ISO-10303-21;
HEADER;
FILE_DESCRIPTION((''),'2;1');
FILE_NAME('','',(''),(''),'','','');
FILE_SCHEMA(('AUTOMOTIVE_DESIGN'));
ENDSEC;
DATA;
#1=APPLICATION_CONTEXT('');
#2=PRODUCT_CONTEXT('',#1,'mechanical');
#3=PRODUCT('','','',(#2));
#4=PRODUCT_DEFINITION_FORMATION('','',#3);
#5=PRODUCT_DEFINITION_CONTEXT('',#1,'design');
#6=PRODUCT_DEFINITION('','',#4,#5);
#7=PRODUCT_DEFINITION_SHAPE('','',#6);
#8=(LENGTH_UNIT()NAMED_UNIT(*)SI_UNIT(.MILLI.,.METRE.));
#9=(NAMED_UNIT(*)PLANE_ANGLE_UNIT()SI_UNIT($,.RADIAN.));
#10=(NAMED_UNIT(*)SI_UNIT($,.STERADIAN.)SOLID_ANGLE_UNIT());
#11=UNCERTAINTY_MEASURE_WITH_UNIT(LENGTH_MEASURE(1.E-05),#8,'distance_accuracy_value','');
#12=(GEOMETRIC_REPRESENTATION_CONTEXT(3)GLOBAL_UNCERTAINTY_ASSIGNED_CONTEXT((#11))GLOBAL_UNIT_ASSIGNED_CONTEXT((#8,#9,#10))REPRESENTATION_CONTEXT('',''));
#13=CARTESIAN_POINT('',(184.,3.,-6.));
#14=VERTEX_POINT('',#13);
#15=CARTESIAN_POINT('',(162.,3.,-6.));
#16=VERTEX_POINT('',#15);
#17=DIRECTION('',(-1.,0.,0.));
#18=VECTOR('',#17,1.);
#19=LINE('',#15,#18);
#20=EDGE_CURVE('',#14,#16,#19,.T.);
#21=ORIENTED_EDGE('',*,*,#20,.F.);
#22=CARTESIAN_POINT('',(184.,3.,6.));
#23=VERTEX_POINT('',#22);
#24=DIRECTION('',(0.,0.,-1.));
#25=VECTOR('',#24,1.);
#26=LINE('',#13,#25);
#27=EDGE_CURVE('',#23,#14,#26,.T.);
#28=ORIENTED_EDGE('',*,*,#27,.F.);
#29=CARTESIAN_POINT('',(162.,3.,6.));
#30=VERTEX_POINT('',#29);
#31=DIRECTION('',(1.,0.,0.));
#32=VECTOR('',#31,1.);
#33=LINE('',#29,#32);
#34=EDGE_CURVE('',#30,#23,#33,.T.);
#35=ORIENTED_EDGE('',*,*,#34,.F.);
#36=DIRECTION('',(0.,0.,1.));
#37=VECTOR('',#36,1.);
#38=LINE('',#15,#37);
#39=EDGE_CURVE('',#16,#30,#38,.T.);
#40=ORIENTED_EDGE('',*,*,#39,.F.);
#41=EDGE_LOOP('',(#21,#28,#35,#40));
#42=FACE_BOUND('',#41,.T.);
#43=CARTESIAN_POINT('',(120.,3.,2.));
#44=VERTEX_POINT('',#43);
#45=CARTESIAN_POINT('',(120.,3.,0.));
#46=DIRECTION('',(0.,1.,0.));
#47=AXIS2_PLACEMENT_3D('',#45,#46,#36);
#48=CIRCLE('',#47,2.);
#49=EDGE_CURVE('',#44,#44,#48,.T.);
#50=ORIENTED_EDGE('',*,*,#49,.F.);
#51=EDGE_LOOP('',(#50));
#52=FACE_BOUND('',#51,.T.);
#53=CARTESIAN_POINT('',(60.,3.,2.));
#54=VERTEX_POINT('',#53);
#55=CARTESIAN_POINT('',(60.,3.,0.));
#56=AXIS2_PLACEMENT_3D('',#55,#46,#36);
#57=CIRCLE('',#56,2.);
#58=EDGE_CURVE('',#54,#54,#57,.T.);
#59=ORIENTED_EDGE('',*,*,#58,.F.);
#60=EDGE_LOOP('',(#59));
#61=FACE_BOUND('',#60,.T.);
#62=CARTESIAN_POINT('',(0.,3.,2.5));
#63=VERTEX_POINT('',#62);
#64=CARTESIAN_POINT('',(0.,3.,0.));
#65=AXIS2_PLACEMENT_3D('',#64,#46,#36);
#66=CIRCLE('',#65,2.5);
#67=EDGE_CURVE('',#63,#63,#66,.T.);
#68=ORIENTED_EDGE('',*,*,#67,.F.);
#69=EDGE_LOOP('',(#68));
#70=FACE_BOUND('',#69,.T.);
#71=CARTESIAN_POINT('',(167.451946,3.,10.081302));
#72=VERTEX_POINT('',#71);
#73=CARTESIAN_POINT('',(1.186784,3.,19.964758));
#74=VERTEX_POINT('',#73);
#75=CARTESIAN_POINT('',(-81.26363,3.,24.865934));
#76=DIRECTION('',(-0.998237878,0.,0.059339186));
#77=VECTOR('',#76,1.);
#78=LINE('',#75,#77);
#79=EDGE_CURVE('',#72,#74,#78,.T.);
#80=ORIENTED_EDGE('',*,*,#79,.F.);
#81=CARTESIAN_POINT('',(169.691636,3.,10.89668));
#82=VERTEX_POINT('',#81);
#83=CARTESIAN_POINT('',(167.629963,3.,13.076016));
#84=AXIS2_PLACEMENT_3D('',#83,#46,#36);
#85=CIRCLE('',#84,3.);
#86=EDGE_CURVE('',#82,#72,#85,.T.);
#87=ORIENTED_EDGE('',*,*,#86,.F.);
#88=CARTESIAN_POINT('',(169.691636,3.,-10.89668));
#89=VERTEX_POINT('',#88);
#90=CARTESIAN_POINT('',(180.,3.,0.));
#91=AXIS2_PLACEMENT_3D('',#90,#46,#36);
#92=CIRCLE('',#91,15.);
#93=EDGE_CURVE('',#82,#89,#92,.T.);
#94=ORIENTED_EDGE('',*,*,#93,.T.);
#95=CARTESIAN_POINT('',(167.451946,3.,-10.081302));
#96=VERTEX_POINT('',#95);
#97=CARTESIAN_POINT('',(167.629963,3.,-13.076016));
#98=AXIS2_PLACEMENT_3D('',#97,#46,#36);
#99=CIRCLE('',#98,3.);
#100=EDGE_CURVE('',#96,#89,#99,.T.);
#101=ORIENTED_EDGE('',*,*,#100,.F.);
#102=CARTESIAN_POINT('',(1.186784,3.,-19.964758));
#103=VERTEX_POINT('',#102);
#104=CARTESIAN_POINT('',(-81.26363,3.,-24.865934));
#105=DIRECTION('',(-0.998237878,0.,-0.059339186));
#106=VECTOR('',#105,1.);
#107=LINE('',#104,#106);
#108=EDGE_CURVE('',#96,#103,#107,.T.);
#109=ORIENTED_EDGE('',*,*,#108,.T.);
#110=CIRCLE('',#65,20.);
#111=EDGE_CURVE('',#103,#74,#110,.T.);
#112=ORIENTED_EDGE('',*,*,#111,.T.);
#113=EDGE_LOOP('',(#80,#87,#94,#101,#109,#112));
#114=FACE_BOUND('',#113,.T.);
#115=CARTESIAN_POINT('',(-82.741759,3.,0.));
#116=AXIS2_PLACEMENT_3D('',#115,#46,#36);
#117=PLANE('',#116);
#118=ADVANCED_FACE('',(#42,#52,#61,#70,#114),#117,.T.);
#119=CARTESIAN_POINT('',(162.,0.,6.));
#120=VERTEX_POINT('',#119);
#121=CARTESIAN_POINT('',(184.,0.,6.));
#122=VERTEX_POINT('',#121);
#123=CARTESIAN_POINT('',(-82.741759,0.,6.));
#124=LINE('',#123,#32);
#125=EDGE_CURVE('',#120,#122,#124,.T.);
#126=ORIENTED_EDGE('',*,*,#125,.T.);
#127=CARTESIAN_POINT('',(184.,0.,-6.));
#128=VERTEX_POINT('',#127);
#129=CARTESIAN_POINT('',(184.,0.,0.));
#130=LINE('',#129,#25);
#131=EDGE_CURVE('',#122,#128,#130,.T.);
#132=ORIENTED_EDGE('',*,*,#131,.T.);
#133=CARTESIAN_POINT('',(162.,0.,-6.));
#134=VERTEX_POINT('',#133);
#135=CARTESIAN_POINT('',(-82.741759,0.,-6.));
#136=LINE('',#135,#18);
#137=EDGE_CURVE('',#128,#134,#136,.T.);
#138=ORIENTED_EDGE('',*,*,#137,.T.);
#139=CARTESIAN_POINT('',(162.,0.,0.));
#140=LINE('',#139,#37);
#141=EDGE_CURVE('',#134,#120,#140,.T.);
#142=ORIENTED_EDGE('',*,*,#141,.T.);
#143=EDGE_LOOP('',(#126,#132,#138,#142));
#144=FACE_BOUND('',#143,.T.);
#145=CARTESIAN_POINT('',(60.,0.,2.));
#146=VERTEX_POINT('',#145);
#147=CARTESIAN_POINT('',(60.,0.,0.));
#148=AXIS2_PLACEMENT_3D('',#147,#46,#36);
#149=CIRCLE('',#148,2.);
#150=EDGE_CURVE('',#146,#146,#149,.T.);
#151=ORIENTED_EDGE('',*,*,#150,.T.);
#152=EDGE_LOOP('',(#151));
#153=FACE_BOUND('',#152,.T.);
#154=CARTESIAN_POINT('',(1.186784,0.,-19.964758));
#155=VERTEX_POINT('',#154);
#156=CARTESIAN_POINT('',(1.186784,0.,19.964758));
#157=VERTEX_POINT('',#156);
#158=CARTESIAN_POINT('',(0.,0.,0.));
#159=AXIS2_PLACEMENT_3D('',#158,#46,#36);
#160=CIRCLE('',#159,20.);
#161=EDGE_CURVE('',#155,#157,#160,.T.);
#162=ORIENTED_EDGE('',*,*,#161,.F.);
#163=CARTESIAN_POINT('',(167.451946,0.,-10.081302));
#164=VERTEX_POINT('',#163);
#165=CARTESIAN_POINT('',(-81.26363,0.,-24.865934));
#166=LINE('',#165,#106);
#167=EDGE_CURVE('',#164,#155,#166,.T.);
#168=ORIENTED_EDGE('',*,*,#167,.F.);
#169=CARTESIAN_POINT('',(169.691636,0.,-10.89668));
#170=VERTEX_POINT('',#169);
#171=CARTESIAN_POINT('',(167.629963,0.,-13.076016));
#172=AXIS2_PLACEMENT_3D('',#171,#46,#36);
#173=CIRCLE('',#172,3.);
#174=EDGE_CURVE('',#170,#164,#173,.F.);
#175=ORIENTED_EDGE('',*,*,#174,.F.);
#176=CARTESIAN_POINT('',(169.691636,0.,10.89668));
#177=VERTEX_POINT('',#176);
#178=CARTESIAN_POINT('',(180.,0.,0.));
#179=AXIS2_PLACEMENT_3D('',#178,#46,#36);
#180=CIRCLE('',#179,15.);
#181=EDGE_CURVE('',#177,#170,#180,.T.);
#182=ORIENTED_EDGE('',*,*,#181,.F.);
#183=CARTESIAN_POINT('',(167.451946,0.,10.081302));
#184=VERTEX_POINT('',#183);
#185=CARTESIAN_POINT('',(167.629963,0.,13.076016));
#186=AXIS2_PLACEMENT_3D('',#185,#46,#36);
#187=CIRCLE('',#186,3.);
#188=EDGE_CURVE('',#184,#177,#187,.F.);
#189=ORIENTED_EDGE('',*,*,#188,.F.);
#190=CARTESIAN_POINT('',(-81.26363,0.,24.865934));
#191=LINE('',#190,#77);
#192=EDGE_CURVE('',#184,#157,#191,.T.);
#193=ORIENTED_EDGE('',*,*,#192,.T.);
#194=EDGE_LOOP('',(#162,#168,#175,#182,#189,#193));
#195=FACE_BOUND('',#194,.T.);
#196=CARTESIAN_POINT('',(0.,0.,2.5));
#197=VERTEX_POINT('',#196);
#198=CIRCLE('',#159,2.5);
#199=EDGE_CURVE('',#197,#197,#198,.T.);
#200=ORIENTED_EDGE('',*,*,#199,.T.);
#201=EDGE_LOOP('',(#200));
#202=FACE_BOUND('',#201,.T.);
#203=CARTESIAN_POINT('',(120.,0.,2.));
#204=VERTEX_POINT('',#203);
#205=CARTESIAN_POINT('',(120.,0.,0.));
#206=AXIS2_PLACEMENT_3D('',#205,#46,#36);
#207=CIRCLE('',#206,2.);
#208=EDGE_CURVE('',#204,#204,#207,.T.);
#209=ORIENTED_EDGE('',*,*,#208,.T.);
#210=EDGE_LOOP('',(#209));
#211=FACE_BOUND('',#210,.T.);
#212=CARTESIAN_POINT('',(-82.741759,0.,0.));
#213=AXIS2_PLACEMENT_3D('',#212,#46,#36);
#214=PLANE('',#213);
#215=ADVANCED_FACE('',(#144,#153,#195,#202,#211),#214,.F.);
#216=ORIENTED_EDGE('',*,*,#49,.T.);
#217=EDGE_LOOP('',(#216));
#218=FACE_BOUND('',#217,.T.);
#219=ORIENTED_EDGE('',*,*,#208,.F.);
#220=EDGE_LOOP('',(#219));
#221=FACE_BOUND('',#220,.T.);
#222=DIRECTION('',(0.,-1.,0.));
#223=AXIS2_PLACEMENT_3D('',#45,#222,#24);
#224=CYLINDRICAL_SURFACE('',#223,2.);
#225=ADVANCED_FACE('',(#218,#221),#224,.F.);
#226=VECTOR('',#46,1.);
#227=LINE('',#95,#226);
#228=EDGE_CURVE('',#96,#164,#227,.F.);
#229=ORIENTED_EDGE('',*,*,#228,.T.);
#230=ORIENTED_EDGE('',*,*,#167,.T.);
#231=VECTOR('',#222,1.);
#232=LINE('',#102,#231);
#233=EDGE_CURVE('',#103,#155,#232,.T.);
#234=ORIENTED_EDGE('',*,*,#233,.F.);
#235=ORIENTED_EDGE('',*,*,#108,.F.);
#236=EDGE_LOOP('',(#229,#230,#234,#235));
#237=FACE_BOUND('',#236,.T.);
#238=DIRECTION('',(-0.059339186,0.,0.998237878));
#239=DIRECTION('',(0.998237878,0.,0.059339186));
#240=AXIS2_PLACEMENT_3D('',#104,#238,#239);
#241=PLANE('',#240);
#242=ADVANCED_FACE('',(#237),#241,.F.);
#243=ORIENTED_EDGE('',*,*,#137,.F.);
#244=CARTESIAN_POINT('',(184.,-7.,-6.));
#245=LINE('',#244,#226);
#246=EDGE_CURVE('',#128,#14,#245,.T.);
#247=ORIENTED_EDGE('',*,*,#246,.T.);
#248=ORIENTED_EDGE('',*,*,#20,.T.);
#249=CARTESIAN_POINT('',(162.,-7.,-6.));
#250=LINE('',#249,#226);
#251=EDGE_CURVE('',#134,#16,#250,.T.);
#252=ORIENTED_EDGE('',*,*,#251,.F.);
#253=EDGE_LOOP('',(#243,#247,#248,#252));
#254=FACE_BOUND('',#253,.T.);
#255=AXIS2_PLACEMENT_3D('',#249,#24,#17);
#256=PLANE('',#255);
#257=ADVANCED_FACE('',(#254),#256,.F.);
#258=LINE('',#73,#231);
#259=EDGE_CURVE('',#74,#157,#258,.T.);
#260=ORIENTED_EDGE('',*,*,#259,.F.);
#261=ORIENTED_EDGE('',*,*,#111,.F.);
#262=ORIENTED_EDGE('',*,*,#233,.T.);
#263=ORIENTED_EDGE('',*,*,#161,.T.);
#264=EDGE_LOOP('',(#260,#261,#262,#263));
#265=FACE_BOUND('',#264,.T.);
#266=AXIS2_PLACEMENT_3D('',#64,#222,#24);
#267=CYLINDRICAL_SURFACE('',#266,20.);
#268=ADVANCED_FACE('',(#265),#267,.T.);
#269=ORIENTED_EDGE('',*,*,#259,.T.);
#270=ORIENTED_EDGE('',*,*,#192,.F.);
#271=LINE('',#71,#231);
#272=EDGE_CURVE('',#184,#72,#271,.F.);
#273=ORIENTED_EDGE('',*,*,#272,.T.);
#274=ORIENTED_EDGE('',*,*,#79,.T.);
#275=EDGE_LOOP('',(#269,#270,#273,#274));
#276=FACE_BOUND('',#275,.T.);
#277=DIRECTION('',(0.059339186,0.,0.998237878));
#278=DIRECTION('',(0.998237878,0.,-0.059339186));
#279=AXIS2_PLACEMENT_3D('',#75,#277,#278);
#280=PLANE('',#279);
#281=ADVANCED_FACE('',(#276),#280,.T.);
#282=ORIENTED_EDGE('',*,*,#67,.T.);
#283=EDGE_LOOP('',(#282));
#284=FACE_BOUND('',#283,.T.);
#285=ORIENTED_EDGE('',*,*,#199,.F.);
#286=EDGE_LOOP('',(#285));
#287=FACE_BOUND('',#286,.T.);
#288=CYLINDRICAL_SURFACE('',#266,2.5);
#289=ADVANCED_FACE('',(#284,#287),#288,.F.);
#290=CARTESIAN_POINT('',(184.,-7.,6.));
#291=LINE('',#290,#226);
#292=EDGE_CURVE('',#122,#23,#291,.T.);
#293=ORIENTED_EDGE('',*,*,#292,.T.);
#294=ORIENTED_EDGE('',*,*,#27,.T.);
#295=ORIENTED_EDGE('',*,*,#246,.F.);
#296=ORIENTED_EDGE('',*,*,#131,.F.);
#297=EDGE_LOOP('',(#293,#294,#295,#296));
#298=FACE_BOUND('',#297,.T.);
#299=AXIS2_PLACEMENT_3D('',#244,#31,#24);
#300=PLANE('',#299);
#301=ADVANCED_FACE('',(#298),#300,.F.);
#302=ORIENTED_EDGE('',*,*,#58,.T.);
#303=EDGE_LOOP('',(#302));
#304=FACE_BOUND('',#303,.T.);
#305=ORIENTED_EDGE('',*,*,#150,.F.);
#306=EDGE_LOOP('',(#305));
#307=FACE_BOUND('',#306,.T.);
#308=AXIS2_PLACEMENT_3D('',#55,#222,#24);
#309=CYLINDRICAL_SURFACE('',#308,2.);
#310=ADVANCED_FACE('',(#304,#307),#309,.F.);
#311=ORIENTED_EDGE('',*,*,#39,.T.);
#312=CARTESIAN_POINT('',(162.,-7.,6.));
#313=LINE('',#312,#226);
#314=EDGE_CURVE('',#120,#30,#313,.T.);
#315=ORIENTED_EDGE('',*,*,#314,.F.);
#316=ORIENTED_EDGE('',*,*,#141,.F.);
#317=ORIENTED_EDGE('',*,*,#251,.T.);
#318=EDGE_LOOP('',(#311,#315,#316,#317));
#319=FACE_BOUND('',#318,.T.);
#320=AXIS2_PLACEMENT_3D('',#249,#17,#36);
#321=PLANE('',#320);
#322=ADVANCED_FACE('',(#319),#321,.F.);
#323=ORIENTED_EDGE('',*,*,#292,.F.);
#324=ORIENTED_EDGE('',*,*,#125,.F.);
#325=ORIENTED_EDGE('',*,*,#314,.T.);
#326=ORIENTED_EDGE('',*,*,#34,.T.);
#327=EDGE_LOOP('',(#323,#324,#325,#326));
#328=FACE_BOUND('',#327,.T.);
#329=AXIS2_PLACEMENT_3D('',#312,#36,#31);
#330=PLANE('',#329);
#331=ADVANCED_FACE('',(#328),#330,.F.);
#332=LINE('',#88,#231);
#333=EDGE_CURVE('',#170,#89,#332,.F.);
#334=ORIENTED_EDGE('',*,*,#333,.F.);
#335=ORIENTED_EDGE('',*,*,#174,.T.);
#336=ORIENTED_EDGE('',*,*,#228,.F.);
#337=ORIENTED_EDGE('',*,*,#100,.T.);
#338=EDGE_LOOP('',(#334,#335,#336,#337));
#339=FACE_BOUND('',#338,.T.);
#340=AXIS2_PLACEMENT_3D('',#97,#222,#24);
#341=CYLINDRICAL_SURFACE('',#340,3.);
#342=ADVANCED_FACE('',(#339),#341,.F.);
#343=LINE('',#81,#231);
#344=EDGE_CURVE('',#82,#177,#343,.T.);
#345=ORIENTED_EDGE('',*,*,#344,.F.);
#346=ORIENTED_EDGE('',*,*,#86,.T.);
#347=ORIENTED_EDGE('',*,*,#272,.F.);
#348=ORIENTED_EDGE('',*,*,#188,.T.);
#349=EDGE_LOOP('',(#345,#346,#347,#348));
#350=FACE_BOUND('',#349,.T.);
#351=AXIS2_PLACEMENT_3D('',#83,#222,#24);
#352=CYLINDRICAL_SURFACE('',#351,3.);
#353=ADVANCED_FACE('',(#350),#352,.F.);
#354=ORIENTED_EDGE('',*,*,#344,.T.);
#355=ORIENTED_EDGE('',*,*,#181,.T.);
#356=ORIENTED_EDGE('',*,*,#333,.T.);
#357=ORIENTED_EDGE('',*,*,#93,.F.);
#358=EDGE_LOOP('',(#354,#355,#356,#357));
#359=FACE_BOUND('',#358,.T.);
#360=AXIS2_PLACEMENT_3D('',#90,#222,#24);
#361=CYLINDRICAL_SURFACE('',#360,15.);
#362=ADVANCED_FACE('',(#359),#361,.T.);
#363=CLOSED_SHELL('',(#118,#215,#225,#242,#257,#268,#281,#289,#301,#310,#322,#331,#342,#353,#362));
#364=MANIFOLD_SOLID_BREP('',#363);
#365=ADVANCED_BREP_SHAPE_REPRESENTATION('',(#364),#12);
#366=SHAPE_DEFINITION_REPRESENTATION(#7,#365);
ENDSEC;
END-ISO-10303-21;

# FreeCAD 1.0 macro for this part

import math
import FreeCAD as App
import Part
import Sketcher
from FreeCAD import Vector
Q = App.Units.Quantity


def edges_at(feature, points):
    """Names of the edges that pass closest to the given points."""
    edges = feature.Shape.Edges
    near = lambda p: min(range(len(edges)), key=lambda i: edges[i].distToShape(Part.Vertex(*p))[0])
    return sorted({f"Edge{near(p) + 1}" for p in points})

doc = App.newDocument("Part")
body = doc.addObject("PartDesign::Body", "Body")

# Sketch on XZ plane
sketch1 = doc.addObject("Sketcher::SketchObject", "Sketch")
body.addObject(sketch1)
sketch1.AttachmentSupport = (doc.XZ_Plane, [""])
sketch1.MapMode = "FlatFace"
sketch1.addGeometry(Part.ArcOfCircle(Part.Circle(Vector(0, 0, 0), Vector(0, 0, 1), 20), math.radians(87), math.radians(273)), False)
sketch1.addGeometry(Part.LineSegment(Vector(1.2, 20, 0), Vector(168.8, 10, 0)), False)
sketch1.addGeometry(Part.ArcOfCircle(Part.Circle(Vector(180, 0, 0), Vector(0, 0, 1), 15), math.radians(-138), math.radians(138)), False)
sketch1.addGeometry(Part.LineSegment(Vector(168.8, -10, 0), Vector(1.2, -20, 0)), False)
sketch1.addGeometry(Part.Circle(Vector(0, 0, 0), Vector(0, 0, 1), 2.5), False)
sketch1.addGeometry(Part.Circle(Vector(60, 0, 0), Vector(0, 0, 1), 2), False)
sketch1.addGeometry(Part.Circle(Vector(120, 0, 0), Vector(0, 0, 1), 2), False)
sketch1.addConstraint(Sketcher.Constraint("Tangent", 0, 1, 1, 1))
sketch1.addConstraint(Sketcher.Constraint("Coincident", 1, 2, 2, 2))
sketch1.addConstraint(Sketcher.Constraint("Coincident", 2, 1, 3, 1))
sketch1.addConstraint(Sketcher.Constraint("Tangent", 3, 2, 0, 2))
sketch1.addConstraint(Sketcher.Constraint("Coincident", 0, 3, -1, 1))
sketch1.addConstraint(Sketcher.Constraint("Coincident", 4, 3, -1, 1))
sketch1.addConstraint(Sketcher.Constraint("Equal", 5, 6))
sketch1.addConstraint(Sketcher.Constraint("Symmetric", 1, 2, 2, 1, -1))
sketch1.addConstraint(Sketcher.Constraint("PointOnObject", 5, 3, -1))
sketch1.addConstraint(Sketcher.Constraint("PointOnObject", 6, 3, -1))
sketch1.addConstraint(Sketcher.Constraint("Diameter", 4, Q("5 mm")))
sketch1.addConstraint(Sketcher.Constraint("Diameter", 5, Q("4 mm")))
sketch1.addConstraint(Sketcher.Constraint("Radius", 0, Q("20 mm")))
sketch1.addConstraint(Sketcher.Constraint("Radius", 2, Q("15 mm")))
sketch1.addConstraint(Sketcher.Constraint("DistanceX", -1, 1, 2, 3, Q("180 mm")))
sketch1.addConstraint(Sketcher.Constraint("DistanceX", -1, 1, 5, 3, Q("60 mm")))
sketch1.addConstraint(Sketcher.Constraint("DistanceX", -1, 1, 6, 3, Q("120 mm")))
sketch1.addConstraint(Sketcher.Constraint("DistanceY", -1, 1, 1, 2, Q("10 mm")))
pad1 = doc.addObject("PartDesign::Pad", "Pad")
body.addObject(pad1)
pad1.Profile = sketch1
pad1.Length = 3
pad1.Reversed = True
doc.recompute()

fillet = doc.addObject("PartDesign::Fillet", "Fillet")
body.addObject(fillet)
fillet.Base = (pad1, edges_at(pad1, [(168.82, 1.5, -10)]))
fillet.Radius = 3
doc.recompute()

fillet2 = doc.addObject("PartDesign::Fillet", "Fillet001")
body.addObject(fillet2)
fillet2.Base = (fillet, edges_at(fillet, [(168.82, 1.5, 10)]))
fillet2.Radius = 3

# Sketch on XZ plane
sketch2 = doc.addObject("Sketcher::SketchObject", "Sketch001")
body.addObject(sketch2)
sketch2.AttachmentSupport = (doc.XZ_Plane, [""])
sketch2.MapMode = "FlatFace"
sketch2.AttachmentOffset = App.Placement(Vector(0, 0, -3), App.Rotation())
sketch2.addGeometry(Part.LineSegment(Vector(162, -6, 0), Vector(162, 6, 0)), False)
sketch2.addGeometry(Part.LineSegment(Vector(162, 6, 0), Vector(184, 6, 0)), False)
sketch2.addGeometry(Part.LineSegment(Vector(184, 6, 0), Vector(184, -6, 0)), False)
sketch2.addGeometry(Part.LineSegment(Vector(184, -6, 0), Vector(162, -6, 0)), False)
sketch2.addConstraint(Sketcher.Constraint("Coincident", 0, 2, 1, 1))
sketch2.addConstraint(Sketcher.Constraint("Coincident", 1, 2, 2, 1))
sketch2.addConstraint(Sketcher.Constraint("Coincident", 2, 2, 3, 1))
sketch2.addConstraint(Sketcher.Constraint("Coincident", 3, 2, 0, 1))
sketch2.addConstraint(Sketcher.Constraint("Vertical", 0))
sketch2.addConstraint(Sketcher.Constraint("Horizontal", 1))
sketch2.addConstraint(Sketcher.Constraint("Vertical", 2))
sketch2.addConstraint(Sketcher.Constraint("Horizontal", 3))
sketch2.addConstraint(Sketcher.Constraint("DistanceX", 1, 1, 1, 2, Q("22 mm")))
sketch2.addConstraint(Sketcher.Constraint("DistanceY", 0, 1, 0, 2, Q("12 mm")))
sketch2.addConstraint(Sketcher.Constraint("DistanceX", -1, 1, 0, 2, Q("162 mm")))
sketch2.addConstraint(Sketcher.Constraint("DistanceY", -1, 1, 0, 2, Q("6 mm")))
pocket1 = doc.addObject("PartDesign::Pocket", "Pocket")
body.addObject(pocket1)
pocket1.Profile = sketch2
pocket1.Length = 10
pocket1.Reversed = True

doc.recompute()
